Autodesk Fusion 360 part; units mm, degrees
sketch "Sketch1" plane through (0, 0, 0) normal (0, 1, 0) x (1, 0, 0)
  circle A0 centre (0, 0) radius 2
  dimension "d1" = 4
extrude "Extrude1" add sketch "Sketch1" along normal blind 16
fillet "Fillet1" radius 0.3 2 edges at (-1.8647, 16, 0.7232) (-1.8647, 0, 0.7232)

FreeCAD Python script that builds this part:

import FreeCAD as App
import Part
import Sketcher
Q = App.Units.Quantity


def edges_at(feature, points):
    """Names of the edges that pass closest to the given points."""
    edges = feature.Shape.Edges
    near = lambda p: min(range(len(edges)), key=lambda i: edges[i].distToShape(Part.Vertex(*p))[0])
    return sorted({f"Edge{near(p) + 1}" for p in points})

doc = App.newDocument("Part")
body = doc.addObject("PartDesign::Body", "Body")

sketch1 = doc.addObject("Sketcher::SketchObject", "Sketch")
body.addObject(sketch1)
sketch1.AttachmentSupport = (doc.XZ_Plane, [""])
sketch1.MapMode = "FlatFace"
sketch1.addGeometry(Part.Circle(App.Vector(0, 0, 0), App.Vector(0, 0, 1), 2), False)
sketch1.addConstraint([
    Sketcher.Constraint("Coincident", 0, 3, -1, 1),
    Sketcher.Constraint("Diameter", 0, Q("4 mm")),
])
pad1 = doc.addObject("PartDesign::Pad", "Pad")
body.addObject(pad1)
pad1.Profile = sketch1
pad1.Length = 16
pad1.Reversed = True
doc.recompute()

fillet = doc.addObject("PartDesign::Fillet", "Fillet")
body.addObject(fillet)
fillet.Base = (pad1, edges_at(pad1, [(-1.865, 16, 0.723), (-1.865, 0, 0.723)]))
fillet.Radius = 0.3

doc.recompute()
